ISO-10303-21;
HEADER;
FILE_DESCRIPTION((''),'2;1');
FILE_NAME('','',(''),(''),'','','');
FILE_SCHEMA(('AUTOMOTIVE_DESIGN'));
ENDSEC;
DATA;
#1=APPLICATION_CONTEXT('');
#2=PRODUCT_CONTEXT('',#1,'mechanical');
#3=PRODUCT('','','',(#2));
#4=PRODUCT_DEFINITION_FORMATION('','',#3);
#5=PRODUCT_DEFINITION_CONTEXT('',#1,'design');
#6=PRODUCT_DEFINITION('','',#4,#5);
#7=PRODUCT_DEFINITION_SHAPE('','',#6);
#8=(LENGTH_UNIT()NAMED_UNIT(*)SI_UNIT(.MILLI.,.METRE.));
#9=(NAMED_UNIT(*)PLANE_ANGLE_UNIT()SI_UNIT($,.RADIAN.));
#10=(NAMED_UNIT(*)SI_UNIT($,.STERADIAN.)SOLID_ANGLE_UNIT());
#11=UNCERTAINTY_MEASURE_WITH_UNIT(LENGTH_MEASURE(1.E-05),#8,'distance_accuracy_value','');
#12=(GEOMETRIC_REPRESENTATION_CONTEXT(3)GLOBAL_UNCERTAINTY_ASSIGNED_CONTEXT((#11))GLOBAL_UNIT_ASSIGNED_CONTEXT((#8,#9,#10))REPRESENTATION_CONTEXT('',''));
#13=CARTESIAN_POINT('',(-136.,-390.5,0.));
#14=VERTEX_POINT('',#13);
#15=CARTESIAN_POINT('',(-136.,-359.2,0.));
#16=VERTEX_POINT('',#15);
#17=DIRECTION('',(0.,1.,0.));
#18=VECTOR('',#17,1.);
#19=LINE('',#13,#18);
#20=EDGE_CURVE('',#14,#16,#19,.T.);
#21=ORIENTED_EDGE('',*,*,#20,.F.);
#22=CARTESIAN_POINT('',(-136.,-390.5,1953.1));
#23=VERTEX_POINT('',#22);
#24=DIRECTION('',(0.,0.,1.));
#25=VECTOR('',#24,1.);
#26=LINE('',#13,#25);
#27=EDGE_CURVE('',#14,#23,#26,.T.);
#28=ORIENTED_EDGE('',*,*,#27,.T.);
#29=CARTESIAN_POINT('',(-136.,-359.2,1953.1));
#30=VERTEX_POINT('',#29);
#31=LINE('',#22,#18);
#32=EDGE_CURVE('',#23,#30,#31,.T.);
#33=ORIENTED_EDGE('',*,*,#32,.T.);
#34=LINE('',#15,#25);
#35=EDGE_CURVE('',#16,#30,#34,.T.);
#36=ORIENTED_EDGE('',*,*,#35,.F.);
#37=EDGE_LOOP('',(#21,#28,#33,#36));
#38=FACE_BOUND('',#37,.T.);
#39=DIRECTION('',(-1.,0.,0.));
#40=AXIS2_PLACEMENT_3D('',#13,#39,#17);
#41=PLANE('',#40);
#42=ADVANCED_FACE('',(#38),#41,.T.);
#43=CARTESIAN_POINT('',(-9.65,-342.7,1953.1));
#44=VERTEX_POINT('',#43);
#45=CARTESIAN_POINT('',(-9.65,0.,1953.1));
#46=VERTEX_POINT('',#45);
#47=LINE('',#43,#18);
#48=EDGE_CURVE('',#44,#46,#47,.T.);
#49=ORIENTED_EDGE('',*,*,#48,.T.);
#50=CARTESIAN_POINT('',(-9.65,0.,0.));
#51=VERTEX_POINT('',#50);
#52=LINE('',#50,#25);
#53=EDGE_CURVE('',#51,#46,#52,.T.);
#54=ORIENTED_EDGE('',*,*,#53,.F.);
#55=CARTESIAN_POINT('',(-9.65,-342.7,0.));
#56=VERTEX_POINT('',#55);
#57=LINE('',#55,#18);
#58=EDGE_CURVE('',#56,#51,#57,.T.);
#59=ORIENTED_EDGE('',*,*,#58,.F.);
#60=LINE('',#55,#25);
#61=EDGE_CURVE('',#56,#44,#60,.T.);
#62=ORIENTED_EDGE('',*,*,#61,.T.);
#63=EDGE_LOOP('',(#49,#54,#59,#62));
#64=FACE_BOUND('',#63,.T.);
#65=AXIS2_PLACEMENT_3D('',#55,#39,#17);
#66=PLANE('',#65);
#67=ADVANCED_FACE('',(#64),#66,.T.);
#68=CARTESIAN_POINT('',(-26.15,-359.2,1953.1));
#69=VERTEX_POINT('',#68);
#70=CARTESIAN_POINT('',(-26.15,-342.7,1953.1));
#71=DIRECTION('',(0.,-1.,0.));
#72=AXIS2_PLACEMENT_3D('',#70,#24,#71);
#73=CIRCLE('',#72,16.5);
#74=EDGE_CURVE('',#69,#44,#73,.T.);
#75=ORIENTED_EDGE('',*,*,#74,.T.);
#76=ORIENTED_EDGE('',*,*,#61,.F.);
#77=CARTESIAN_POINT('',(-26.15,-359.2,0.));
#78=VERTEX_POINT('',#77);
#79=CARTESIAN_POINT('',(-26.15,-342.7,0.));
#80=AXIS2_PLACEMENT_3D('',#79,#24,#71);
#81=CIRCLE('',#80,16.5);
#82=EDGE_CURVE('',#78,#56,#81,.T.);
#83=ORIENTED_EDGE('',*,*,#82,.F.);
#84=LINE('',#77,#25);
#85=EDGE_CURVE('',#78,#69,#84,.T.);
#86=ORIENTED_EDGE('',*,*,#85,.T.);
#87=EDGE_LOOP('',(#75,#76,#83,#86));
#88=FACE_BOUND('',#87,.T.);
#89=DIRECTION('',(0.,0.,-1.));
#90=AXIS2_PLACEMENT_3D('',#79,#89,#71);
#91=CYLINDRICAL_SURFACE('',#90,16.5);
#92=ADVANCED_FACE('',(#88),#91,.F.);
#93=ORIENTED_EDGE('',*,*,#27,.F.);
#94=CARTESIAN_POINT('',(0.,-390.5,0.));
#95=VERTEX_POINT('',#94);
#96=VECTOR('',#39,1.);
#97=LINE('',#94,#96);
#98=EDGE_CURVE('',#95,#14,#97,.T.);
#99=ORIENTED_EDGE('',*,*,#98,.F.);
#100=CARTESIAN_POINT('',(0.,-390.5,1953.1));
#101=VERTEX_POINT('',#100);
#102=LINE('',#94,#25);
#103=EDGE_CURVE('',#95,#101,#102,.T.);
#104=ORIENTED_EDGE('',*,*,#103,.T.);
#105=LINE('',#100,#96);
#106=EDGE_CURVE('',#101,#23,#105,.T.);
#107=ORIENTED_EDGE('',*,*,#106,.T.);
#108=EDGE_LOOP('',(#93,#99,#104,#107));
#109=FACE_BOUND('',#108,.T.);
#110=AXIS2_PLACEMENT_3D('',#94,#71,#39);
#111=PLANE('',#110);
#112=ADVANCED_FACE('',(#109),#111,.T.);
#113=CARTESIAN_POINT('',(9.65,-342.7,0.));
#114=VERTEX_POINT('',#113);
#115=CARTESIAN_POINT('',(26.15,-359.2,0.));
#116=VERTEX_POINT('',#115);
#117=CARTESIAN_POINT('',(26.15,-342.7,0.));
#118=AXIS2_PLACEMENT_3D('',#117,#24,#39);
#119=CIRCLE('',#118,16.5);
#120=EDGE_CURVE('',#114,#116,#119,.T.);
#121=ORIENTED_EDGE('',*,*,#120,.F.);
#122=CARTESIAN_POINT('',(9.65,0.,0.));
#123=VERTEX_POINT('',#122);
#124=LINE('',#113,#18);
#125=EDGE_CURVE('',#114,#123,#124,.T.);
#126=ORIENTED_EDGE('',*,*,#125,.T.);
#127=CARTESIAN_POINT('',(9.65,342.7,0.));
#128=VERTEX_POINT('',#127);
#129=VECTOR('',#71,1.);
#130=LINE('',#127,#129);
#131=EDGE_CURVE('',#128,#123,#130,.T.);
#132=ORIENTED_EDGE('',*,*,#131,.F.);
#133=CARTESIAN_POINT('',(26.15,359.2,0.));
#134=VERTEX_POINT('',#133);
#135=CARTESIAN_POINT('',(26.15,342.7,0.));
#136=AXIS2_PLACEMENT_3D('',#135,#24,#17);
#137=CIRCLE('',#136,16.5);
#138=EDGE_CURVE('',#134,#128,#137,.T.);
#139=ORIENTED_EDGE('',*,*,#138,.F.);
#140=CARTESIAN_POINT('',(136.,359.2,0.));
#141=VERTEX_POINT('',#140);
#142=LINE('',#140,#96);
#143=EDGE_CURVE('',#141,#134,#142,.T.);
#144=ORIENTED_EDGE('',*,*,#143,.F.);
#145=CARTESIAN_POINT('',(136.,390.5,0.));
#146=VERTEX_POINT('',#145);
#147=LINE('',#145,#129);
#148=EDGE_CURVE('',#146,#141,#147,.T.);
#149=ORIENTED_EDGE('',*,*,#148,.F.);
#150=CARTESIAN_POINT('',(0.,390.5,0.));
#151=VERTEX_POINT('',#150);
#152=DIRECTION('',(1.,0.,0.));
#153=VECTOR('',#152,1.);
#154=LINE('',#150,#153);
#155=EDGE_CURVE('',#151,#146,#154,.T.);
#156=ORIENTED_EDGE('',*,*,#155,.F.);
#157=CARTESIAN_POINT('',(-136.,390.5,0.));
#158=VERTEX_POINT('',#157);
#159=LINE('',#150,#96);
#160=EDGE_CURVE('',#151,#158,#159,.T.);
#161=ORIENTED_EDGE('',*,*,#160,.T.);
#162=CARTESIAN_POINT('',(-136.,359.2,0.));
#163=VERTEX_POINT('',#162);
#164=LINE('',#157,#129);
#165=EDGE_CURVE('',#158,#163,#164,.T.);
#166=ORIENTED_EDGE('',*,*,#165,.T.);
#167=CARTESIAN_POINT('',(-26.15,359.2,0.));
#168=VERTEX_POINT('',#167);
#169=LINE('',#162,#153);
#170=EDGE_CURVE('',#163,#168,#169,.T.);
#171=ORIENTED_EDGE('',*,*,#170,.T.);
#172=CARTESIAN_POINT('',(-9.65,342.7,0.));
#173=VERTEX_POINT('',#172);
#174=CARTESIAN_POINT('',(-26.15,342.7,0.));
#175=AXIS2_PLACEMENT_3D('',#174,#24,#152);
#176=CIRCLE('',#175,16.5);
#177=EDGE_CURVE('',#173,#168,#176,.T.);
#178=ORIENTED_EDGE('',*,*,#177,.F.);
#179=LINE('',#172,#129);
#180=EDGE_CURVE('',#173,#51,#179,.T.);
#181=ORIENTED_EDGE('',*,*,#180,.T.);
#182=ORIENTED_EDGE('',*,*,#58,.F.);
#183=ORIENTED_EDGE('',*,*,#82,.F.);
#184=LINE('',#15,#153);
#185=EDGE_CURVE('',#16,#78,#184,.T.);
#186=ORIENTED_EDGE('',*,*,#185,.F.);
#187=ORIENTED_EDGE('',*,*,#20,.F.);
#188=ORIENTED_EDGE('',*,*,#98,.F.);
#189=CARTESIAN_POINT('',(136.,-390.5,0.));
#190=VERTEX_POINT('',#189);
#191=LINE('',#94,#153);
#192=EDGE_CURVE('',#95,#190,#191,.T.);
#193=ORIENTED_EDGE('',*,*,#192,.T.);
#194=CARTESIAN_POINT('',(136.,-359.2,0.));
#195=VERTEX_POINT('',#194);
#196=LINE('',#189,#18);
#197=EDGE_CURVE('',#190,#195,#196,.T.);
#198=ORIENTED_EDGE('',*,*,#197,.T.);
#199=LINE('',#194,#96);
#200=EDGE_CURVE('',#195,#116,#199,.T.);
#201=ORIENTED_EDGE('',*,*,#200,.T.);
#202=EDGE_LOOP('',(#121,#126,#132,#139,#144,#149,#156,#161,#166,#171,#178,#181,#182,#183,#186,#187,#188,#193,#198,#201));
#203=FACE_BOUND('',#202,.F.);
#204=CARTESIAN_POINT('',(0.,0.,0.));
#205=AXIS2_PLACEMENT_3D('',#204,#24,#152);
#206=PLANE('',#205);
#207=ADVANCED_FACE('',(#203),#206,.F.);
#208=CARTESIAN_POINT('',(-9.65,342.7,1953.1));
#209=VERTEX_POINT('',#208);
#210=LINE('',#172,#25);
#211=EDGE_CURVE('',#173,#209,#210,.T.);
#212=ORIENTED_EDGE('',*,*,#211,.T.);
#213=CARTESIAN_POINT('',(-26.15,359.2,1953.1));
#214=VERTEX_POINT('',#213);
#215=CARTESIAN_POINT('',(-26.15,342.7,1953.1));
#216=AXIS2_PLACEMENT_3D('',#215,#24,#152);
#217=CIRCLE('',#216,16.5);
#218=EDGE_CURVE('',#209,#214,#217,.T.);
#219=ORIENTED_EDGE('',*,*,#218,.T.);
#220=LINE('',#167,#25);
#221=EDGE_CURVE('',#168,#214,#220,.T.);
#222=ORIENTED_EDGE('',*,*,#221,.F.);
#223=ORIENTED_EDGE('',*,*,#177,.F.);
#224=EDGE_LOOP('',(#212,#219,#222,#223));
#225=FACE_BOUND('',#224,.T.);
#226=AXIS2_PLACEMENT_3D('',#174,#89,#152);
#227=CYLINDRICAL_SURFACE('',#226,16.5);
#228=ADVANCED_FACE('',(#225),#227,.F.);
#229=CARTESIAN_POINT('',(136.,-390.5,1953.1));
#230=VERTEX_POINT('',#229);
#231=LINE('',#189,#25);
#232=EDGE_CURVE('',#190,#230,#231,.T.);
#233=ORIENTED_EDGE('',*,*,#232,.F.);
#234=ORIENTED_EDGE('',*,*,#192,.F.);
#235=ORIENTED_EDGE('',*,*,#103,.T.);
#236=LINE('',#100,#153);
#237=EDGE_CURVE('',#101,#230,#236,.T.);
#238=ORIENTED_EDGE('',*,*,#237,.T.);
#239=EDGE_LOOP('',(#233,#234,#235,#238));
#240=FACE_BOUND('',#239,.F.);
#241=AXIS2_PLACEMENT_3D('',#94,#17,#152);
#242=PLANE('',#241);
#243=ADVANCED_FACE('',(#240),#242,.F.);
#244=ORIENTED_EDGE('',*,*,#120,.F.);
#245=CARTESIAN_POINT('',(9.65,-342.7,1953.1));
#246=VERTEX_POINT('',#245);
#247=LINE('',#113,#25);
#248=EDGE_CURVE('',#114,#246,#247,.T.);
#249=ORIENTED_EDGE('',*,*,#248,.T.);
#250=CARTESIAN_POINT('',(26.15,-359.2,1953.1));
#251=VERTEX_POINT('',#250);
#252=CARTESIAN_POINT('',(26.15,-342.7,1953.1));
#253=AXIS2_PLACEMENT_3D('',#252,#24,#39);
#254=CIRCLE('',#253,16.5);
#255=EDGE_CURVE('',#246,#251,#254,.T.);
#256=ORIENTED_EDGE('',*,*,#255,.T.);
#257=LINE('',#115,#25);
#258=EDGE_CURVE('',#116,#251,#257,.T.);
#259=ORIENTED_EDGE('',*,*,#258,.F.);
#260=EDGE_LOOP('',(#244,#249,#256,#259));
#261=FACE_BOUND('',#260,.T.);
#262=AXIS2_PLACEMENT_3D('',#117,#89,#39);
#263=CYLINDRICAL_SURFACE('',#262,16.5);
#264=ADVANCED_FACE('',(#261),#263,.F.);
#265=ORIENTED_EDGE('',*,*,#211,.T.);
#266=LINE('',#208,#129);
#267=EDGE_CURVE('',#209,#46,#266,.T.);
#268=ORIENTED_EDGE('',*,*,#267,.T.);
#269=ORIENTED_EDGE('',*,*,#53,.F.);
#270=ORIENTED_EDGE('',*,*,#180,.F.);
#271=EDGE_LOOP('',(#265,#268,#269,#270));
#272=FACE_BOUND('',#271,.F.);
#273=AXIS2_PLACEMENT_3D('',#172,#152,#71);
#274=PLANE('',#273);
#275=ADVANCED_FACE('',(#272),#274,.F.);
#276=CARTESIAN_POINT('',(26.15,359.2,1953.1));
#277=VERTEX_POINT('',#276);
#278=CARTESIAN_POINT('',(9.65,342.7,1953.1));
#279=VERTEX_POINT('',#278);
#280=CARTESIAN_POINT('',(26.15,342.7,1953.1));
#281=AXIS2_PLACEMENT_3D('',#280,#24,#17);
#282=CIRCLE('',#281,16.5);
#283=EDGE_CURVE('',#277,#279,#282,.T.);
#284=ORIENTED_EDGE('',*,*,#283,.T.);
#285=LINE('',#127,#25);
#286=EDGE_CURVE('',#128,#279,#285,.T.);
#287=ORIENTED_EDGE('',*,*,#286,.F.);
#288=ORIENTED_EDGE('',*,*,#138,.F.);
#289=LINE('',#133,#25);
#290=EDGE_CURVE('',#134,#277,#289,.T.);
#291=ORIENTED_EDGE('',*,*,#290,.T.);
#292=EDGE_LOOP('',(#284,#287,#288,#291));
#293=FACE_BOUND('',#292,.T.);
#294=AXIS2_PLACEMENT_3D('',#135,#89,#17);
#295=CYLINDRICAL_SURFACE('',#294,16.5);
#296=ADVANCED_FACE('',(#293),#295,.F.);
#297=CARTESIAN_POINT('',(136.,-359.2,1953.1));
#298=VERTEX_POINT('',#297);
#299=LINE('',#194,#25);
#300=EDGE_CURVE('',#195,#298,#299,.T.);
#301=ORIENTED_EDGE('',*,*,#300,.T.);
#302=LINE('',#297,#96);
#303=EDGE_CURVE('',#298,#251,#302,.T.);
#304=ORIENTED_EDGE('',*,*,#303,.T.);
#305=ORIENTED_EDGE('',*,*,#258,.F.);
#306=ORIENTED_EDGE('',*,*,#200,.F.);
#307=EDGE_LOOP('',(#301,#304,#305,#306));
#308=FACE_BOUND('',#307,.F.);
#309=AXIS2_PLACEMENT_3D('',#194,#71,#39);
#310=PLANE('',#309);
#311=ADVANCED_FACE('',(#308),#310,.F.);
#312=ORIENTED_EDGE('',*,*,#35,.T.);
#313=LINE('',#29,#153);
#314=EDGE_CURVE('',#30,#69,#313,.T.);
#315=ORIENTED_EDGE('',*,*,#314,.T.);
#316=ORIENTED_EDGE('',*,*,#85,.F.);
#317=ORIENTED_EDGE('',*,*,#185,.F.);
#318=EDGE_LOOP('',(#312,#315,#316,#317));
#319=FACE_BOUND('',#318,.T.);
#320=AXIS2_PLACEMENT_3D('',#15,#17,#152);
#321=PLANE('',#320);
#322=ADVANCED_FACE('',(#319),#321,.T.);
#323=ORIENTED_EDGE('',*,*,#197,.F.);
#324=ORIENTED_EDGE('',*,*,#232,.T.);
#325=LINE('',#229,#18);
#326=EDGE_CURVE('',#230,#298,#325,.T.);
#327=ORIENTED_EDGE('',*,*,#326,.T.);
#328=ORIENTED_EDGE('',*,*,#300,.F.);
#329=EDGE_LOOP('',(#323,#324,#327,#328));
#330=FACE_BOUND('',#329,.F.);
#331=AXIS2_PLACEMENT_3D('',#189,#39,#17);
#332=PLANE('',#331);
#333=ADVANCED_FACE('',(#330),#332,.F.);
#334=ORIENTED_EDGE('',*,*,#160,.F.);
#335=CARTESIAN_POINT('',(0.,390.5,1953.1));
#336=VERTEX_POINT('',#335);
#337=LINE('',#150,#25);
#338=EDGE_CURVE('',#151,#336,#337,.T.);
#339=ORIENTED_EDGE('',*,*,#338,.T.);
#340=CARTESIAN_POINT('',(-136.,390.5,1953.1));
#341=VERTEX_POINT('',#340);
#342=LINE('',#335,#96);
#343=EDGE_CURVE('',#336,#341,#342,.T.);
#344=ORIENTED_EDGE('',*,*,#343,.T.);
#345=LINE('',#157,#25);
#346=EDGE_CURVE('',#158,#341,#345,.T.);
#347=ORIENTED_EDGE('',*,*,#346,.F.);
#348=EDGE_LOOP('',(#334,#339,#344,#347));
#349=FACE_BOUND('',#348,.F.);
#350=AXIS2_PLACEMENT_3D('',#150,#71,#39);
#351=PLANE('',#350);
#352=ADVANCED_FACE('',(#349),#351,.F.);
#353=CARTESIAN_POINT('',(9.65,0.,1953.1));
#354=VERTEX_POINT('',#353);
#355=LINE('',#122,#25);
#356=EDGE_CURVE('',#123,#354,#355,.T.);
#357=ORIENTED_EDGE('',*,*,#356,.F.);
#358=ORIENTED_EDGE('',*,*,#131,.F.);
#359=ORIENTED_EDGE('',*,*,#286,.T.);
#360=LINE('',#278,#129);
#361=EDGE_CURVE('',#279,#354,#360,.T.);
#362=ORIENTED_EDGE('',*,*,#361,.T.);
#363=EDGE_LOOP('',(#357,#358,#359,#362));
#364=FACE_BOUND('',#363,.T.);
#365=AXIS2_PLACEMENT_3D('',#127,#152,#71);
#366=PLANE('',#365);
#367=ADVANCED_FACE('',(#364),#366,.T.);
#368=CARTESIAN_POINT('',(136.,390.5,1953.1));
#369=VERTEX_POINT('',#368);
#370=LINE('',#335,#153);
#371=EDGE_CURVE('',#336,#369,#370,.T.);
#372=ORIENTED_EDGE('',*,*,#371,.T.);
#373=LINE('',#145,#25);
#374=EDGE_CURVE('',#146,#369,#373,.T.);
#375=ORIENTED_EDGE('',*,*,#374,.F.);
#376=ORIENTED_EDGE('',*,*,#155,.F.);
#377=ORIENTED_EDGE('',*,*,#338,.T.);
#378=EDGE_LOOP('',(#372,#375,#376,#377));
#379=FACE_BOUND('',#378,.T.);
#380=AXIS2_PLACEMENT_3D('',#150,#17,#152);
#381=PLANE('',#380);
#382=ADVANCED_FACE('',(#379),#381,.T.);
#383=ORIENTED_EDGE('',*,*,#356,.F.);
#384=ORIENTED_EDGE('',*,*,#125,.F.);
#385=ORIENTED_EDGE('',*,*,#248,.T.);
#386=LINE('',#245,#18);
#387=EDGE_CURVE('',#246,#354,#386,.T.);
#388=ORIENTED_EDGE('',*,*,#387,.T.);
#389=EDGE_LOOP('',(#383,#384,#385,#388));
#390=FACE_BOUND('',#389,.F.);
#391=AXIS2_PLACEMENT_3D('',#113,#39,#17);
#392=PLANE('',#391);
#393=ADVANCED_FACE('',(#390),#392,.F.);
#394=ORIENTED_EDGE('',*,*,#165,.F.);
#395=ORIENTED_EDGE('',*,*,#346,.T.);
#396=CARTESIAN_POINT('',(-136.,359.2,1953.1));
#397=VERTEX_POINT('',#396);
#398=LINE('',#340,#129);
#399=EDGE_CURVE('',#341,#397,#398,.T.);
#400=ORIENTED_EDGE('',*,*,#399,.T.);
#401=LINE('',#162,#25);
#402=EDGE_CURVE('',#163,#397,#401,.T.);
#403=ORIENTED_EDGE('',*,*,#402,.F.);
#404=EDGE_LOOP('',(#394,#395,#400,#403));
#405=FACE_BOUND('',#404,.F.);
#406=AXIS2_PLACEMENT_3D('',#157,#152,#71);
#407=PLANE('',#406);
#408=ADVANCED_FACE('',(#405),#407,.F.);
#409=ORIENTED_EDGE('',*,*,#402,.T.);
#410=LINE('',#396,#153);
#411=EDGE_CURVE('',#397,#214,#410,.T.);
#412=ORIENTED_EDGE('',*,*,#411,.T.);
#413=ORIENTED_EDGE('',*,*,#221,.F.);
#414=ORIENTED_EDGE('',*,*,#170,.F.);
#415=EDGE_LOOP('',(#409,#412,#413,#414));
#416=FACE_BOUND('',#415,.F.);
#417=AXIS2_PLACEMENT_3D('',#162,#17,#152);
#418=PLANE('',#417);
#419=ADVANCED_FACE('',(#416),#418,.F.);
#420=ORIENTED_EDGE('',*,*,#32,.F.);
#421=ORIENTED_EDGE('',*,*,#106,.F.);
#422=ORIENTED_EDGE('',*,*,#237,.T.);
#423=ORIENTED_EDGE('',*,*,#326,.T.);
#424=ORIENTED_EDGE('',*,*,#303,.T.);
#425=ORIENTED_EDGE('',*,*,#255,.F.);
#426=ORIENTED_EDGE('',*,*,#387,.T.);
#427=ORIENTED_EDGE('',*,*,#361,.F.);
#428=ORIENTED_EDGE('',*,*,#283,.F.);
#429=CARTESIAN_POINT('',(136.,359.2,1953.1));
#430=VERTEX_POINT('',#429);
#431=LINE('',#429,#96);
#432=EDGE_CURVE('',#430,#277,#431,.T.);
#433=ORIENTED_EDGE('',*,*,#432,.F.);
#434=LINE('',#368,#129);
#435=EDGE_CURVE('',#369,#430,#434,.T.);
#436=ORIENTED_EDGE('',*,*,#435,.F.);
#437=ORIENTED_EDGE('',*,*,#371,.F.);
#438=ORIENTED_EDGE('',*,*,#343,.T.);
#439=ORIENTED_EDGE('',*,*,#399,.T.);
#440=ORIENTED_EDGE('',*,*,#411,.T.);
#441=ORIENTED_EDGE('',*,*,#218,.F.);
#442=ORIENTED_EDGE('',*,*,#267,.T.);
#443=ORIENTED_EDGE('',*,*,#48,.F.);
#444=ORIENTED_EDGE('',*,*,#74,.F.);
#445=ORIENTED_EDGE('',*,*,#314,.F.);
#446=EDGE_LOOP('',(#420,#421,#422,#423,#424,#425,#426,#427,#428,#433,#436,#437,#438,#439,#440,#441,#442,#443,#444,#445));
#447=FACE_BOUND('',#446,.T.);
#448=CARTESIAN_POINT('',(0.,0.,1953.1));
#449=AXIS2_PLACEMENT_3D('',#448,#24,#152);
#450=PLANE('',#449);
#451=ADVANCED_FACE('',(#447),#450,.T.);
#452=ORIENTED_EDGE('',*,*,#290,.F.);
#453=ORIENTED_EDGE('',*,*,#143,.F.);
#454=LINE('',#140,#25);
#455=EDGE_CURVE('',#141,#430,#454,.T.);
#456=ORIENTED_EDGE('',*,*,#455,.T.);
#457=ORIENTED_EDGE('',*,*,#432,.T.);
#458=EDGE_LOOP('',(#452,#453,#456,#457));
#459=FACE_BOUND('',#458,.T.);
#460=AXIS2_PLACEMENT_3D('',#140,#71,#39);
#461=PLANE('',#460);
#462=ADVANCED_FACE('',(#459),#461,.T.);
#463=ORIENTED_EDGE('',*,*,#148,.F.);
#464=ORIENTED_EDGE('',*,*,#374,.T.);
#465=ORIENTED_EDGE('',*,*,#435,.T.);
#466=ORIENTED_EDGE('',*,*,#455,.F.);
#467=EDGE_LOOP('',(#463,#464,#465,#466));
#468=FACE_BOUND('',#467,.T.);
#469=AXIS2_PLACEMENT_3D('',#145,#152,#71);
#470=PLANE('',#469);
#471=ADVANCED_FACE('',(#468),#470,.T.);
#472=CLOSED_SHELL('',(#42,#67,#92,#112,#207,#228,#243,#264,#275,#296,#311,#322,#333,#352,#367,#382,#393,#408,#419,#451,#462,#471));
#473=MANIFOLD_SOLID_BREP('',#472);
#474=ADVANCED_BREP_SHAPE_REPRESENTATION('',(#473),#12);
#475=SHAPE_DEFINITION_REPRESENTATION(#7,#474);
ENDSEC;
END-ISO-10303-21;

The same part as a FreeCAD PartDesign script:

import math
import FreeCAD as App
import Part
import Sketcher
from FreeCAD import Vector
Q = App.Units.Quantity

doc = App.newDocument("Part")
body = doc.addObject("PartDesign::Body", "Body")

# Sketch on XY plane
sketch1 = body.newObject("Sketcher::SketchObject", "Sketch")
sketch1.AttachmentSupport = (doc.getObject("XY_Plane"), [""])
sketch1.MapMode = "FlatFace"
sketch1.addGeometry([
    Part.LineSegment(Vector(-136, -359, 0), Vector(-136, -390, 0)),  # 0
    Part.LineSegment(Vector(-136, -390, 0), Vector(136, -390, 0)),  # 1
    Part.LineSegment(Vector(136, -390, 0), Vector(136, -359, 0)),  # 2
    Part.LineSegment(Vector(136, -359, 0), Vector(26, -359, 0)),  # 3
    Part.ArcOfCircle(Part.Circle(Vector(26, -343, 0), Vector(0, 0, 1), 16), math.radians(180), math.radians(270)),  # 4
    Part.LineSegment(Vector(10, -343, 0), Vector(10, 343, 0)),  # 5
    Part.ArcOfCircle(Part.Circle(Vector(26, 343, 0), Vector(0, 0, 1), 16), math.radians(90), math.radians(180)),  # 6
    Part.LineSegment(Vector(26, 359, 0), Vector(136, 359, 0)),  # 7
    Part.LineSegment(Vector(136, 359, 0), Vector(136, 390, 0)),  # 8
    Part.LineSegment(Vector(136, 390, 0), Vector(-136, 390, 0)),  # 9
    Part.LineSegment(Vector(-136, 390, 0), Vector(-136, 359, 0)),  # 10
    Part.LineSegment(Vector(-136, 359, 0), Vector(-26, 359, 0)),  # 11
    Part.ArcOfCircle(Part.Circle(Vector(-26, 343, 0), Vector(0, 0, 1), 16), math.radians(0), math.radians(90)),  # 12
    Part.LineSegment(Vector(-10, 343, 0), Vector(-10, -343, 0)),  # 13
    Part.ArcOfCircle(Part.Circle(Vector(-26, -343, 0), Vector(0, 0, 1), 16), math.radians(-90), math.radians(0)),  # 14
    Part.LineSegment(Vector(-26, -359, 0), Vector(-136, -359, 0)),  # 15
], False)
sketch1.addConstraint([
    Sketcher.Constraint("Coincident", 0, 2, 1, 1),
    Sketcher.Constraint("Coincident", 1, 2, 2, 1),
    Sketcher.Constraint("Coincident", 2, 2, 3, 1),
    Sketcher.Constraint("Tangent", 3, 2, 4, 2),
    Sketcher.Constraint("Tangent", 4, 1, 5, 1),
    Sketcher.Constraint("Tangent", 5, 2, 6, 2),
    Sketcher.Constraint("Tangent", 6, 1, 7, 1),
    Sketcher.Constraint("Coincident", 7, 2, 8, 1),
    Sketcher.Constraint("Coincident", 8, 2, 9, 1),
    Sketcher.Constraint("Coincident", 9, 2, 10, 1),
    Sketcher.Constraint("Coincident", 10, 2, 11, 1),
    Sketcher.Constraint("Tangent", 11, 2, 12, 2),
    Sketcher.Constraint("Tangent", 12, 1, 13, 1),
    Sketcher.Constraint("Tangent", 13, 2, 14, 2),
    Sketcher.Constraint("Tangent", 14, 1, 15, 1),
    Sketcher.Constraint("Coincident", 15, 2, 0, 1),
    Sketcher.Constraint("Vertical", 0),
    Sketcher.Constraint("Horizontal", 1),
    Sketcher.Constraint("Vertical", 2),
    Sketcher.Constraint("Horizontal", 3),
    Sketcher.Constraint("Vertical", 5),
    Sketcher.Constraint("Horizontal", 7),
    Sketcher.Constraint("Vertical", 8),
    Sketcher.Constraint("Horizontal", 9),
    Sketcher.Constraint("Vertical", 10),
    Sketcher.Constraint("Horizontal", 11),
    Sketcher.Constraint("Vertical", 13),
    Sketcher.Constraint("Horizontal", 15),
    Sketcher.Constraint("Equal", 4, 6),
    Sketcher.Constraint("Equal", 6, 12),
    Sketcher.Constraint("Equal", 12, 14),
    Sketcher.Constraint("Symmetric", 4, 3, 12, 3, -1, 1),
    Sketcher.Constraint("Symmetric", 0, 2, 8, 2, -1, 1),
    Sketcher.Constraint("Symmetric", 7, 2, 10, 2, -2),
    Sketcher.Constraint("Symmetric", 2, 2, 15, 2, -2),
    Sketcher.Constraint("Radius", 4, Q("16.5 mm")),
    Sketcher.Constraint("DistanceY", 0, 2, 0, 1, Q("31.3 mm")),
    Sketcher.Constraint("DistanceX", 0, 2, -1, 1, Q("136 mm")),
    Sketcher.Constraint("DistanceY", 0, 2, -1, 1, Q("390.5 mm")),
    Sketcher.Constraint("DistanceX", -1, 1, 4, 1, Q("9.65 mm")),
])
pad1 = body.newObject("PartDesign::Pad", "Pad")
pad1.Profile = sketch1
pad1.Length = 1953.1

doc.recompute()
